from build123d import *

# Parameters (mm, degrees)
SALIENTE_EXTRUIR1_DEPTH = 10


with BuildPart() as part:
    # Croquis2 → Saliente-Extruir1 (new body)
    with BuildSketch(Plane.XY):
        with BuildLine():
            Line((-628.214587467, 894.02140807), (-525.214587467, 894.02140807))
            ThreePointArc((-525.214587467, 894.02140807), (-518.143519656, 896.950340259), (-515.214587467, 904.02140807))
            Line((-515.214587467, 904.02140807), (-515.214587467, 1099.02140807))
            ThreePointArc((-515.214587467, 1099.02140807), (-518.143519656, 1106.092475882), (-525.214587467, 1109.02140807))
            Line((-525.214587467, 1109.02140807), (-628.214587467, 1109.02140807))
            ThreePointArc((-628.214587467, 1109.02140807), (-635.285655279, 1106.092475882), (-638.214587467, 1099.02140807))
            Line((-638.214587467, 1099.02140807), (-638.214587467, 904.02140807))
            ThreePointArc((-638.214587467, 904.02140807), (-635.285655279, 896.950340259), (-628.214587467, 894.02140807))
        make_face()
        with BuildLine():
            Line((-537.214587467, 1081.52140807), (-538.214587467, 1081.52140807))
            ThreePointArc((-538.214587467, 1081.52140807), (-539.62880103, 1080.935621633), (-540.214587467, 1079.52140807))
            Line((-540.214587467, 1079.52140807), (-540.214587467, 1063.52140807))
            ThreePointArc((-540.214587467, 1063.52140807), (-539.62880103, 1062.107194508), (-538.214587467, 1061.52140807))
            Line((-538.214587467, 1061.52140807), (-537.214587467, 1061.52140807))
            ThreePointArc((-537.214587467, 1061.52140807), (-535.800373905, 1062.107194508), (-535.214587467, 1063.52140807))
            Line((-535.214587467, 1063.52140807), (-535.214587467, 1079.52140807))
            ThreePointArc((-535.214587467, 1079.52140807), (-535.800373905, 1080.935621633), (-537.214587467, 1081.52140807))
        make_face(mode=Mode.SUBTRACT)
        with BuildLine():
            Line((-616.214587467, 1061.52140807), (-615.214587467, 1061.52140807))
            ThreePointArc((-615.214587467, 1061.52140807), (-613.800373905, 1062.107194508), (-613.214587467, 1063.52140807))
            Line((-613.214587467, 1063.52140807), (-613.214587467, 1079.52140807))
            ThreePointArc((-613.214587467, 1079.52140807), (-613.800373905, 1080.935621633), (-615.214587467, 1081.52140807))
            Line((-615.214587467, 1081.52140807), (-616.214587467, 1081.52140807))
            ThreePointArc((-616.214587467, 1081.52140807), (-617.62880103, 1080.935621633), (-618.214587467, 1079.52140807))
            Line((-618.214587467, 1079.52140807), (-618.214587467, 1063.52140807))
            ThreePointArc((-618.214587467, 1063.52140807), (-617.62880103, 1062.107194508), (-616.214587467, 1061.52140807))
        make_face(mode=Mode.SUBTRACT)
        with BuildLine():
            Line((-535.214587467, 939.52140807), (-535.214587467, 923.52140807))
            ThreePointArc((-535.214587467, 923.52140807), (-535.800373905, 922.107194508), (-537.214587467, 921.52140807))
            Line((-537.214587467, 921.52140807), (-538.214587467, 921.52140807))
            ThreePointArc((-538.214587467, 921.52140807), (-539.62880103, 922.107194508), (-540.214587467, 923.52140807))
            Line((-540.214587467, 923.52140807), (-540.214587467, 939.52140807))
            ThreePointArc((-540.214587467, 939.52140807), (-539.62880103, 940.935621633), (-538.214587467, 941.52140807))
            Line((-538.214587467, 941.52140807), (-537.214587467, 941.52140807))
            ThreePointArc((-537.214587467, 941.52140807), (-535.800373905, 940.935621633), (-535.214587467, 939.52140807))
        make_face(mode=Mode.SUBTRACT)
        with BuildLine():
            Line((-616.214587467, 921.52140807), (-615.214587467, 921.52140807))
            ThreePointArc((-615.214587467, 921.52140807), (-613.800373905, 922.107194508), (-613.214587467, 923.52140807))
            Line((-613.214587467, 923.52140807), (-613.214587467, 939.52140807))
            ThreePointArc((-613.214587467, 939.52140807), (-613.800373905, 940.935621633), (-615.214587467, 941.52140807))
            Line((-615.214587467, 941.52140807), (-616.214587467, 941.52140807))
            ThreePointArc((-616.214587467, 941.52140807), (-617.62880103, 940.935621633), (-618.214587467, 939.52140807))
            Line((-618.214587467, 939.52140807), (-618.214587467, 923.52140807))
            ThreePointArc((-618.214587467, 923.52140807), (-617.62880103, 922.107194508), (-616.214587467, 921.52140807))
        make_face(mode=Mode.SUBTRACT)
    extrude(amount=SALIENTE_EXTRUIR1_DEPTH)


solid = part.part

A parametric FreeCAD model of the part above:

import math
import FreeCAD as App
import Part
import Sketcher

V = App.Vector

doc = App.newDocument("Part")
params = doc.addObject("Spreadsheet::Sheet", "Params")
for row, (alias, value) in enumerate([
    ("sketch1_radius", "10 mm"),
    ("sketch1_radius2", "2 mm"),
    ("sketch1_width", "103 mm"),
    ("sketch1_width2", "1 mm"),
    ("sketch1_height", "195 mm"),
    ("pad1_length", "10 mm"),
], start=1):
    params.set(f"A{row}", alias)
    params.set(f"B{row}", "=" + value)
    params.setAlias(f"B{row}", alias)

body = doc.addObject("PartDesign::Body", "Body")

# Sketch on XY plane
sketch1 = body.newObject("Sketcher::SketchObject", "Sketch")
sketch1.AttachmentSupport = (doc.getObject("XY_Plane"), [""])
sketch1.MapMode = "FlatFace"
sketch1.addGeometry([
    Part.LineSegment(V(-628.2, 894, 0), V(-525.2, 894, 0)),  # 0
    Part.ArcOfCircle(Part.Circle(V(-525.2, 904, 0), V(0, 0, 1), 10), math.radians(-90), math.radians(0)),  # 1
    Part.LineSegment(V(-515.2, 904, 0), V(-515.2, 1099, 0)),  # 2
    Part.ArcOfCircle(Part.Circle(V(-525.2, 1099, 0), V(0, 0, 1), 10), math.radians(0), math.radians(90)),  # 3
    Part.LineSegment(V(-525.2, 1109, 0), V(-628.2, 1109, 0)),  # 4
    Part.ArcOfCircle(Part.Circle(V(-628.2, 1099, 0), V(0, 0, 1), 10), math.radians(90), math.radians(180)),  # 5
    Part.LineSegment(V(-638.2, 1099, 0), V(-638.2, 904, 0)),  # 6
    Part.ArcOfCircle(Part.Circle(V(-628.2, 904, 0), V(0, 0, 1), 10), math.radians(-180), math.radians(-90)),  # 7
    Part.LineSegment(V(-615.2, 921.5, 0), V(-616.2, 921.5, 0)),  # 8
    Part.ArcOfCircle(Part.Circle(V(-616.2, 923.5, 0), V(0, 0, 1), 2), math.radians(180), math.radians(270)),  # 9
    Part.LineSegment(V(-618.2, 923.5, 0), V(-618.2, 939.5, 0)),  # 10
    Part.ArcOfCircle(Part.Circle(V(-616.2, 939.5, 0), V(0, 0, 1), 2), math.radians(90), math.radians(180)),  # 11
    Part.LineSegment(V(-616.2, 941.5, 0), V(-615.2, 941.5, 0)),  # 12
    Part.ArcOfCircle(Part.Circle(V(-615.2, 939.5, 0), V(0, 0, 1), 2), math.radians(0), math.radians(90)),  # 13
    Part.LineSegment(V(-613.2, 939.5, 0), V(-613.2, 923.5, 0)),  # 14
    Part.ArcOfCircle(Part.Circle(V(-615.2, 923.5, 0), V(0, 0, 1), 2), math.radians(-90), math.radians(0)),  # 15
    Part.ArcOfCircle(Part.Circle(V(-537.2, 939.5, 0), V(0, 0, 1), 2), math.radians(0), math.radians(90)),  # 16
    Part.LineSegment(V(-535.2, 939.5, 0), V(-535.2, 923.5, 0)),  # 17
    Part.ArcOfCircle(Part.Circle(V(-537.2, 923.5, 0), V(0, 0, 1), 2), math.radians(-90), math.radians(0)),  # 18
    Part.LineSegment(V(-537.2, 921.5, 0), V(-538.2, 921.5, 0)),  # 19
    Part.ArcOfCircle(Part.Circle(V(-538.2, 923.5, 0), V(0, 0, 1), 2), math.radians(180), math.radians(270)),  # 20
    Part.LineSegment(V(-540.2, 923.5, 0), V(-540.2, 939.5, 0)),  # 21
    Part.ArcOfCircle(Part.Circle(V(-538.2, 939.5, 0), V(0, 0, 1), 2), math.radians(90), math.radians(180)),  # 22
    Part.LineSegment(V(-538.2, 941.5, 0), V(-537.2, 941.5, 0)),  # 23
    Part.LineSegment(V(-615.2, 1061.5, 0), V(-616.2, 1061.5, 0)),  # 24
    Part.ArcOfCircle(Part.Circle(V(-616.2, 1063.5, 0), V(0, 0, 1), 2), math.radians(180), math.radians(270)),  # 25
    Part.LineSegment(V(-618.2, 1063.5, 0), V(-618.2, 1079.5, 0)),  # 26
    Part.ArcOfCircle(Part.Circle(V(-616.2, 1079.5, 0), V(0, 0, 1), 2), math.radians(90), math.radians(180)),  # 27
    Part.LineSegment(V(-616.2, 1081.5, 0), V(-615.2, 1081.5, 0)),  # 28
    Part.ArcOfCircle(Part.Circle(V(-615.2, 1079.5, 0), V(0, 0, 1), 2), math.radians(0), math.radians(90)),  # 29
    Part.LineSegment(V(-613.2, 1079.5, 0), V(-613.2, 1063.5, 0)),  # 30
    Part.ArcOfCircle(Part.Circle(V(-615.2, 1063.5, 0), V(0, 0, 1), 2), math.radians(-90), math.radians(0)),  # 31
    Part.LineSegment(V(-538.2, 1081.5, 0), V(-537.2, 1081.5, 0)),  # 32
    Part.ArcOfCircle(Part.Circle(V(-537.2, 1079.5, 0), V(0, 0, 1), 2), math.radians(0), math.radians(90)),  # 33
    Part.LineSegment(V(-535.2, 1079.5, 0), V(-535.2, 1063.5, 0)),  # 34
    Part.ArcOfCircle(Part.Circle(V(-537.2, 1063.5, 0), V(0, 0, 1), 2), math.radians(-90), math.radians(0)),  # 35
    Part.LineSegment(V(-537.2, 1061.5, 0), V(-538.2, 1061.5, 0)),  # 36
    Part.ArcOfCircle(Part.Circle(V(-538.2, 1063.5, 0), V(0, 0, 1), 2), math.radians(180), math.radians(270)),  # 37
    Part.LineSegment(V(-540.2, 1063.5, 0), V(-540.2, 1079.5, 0)),  # 38
    Part.ArcOfCircle(Part.Circle(V(-538.2, 1079.5, 0), V(0, 0, 1), 2), math.radians(90), math.radians(180)),  # 39
], False)
sketch1.addConstraint([
    Sketcher.Constraint("Tangent", 0, 2, 1, 1),
    Sketcher.Constraint("Tangent", 1, 2, 2, 1),
    Sketcher.Constraint("Tangent", 2, 2, 3, 1),
    Sketcher.Constraint("Tangent", 3, 2, 4, 1),
    Sketcher.Constraint("Tangent", 4, 2, 5, 1),
    Sketcher.Constraint("Tangent", 5, 2, 6, 1),
    Sketcher.Constraint("Tangent", 6, 2, 7, 1),
    Sketcher.Constraint("Tangent", 7, 2, 0, 1),
    Sketcher.Constraint("Tangent", 8, 2, 9, 2),
    Sketcher.Constraint("Tangent", 9, 1, 10, 1),
    Sketcher.Constraint("Tangent", 10, 2, 11, 2),
    Sketcher.Constraint("Tangent", 11, 1, 12, 1),
    Sketcher.Constraint("Tangent", 12, 2, 13, 2),
    Sketcher.Constraint("Tangent", 13, 1, 14, 1),
    Sketcher.Constraint("Tangent", 14, 2, 15, 2),
    Sketcher.Constraint("Tangent", 15, 1, 8, 1),
    Sketcher.Constraint("Tangent", 16, 1, 17, 1),
    Sketcher.Constraint("Tangent", 17, 2, 18, 2),
    Sketcher.Constraint("Tangent", 18, 1, 19, 1),
    Sketcher.Constraint("Tangent", 19, 2, 20, 2),
    Sketcher.Constraint("Tangent", 20, 1, 21, 1),
    Sketcher.Constraint("Tangent", 21, 2, 22, 2),
    Sketcher.Constraint("Tangent", 22, 1, 23, 1),
    Sketcher.Constraint("Tangent", 23, 2, 16, 2),
    Sketcher.Constraint("Tangent", 24, 2, 25, 2),
    Sketcher.Constraint("Tangent", 25, 1, 26, 1),
    Sketcher.Constraint("Tangent", 26, 2, 27, 2),
    Sketcher.Constraint("Tangent", 27, 1, 28, 1),
    Sketcher.Constraint("Tangent", 28, 2, 29, 2),
    Sketcher.Constraint("Tangent", 29, 1, 30, 1),
    Sketcher.Constraint("Tangent", 30, 2, 31, 2),
    Sketcher.Constraint("Tangent", 31, 1, 24, 1),
    Sketcher.Constraint("Tangent", 32, 2, 33, 2),
    Sketcher.Constraint("Tangent", 33, 1, 34, 1),
    Sketcher.Constraint("Tangent", 34, 2, 35, 2),
    Sketcher.Constraint("Tangent", 35, 1, 36, 1),
    Sketcher.Constraint("Tangent", 36, 2, 37, 2),
    Sketcher.Constraint("Tangent", 37, 1, 38, 1),
    Sketcher.Constraint("Tangent", 38, 2, 39, 2),
    Sketcher.Constraint("Tangent", 39, 1, 32, 1),
    Sketcher.Constraint("Horizontal", 0),
    Sketcher.Constraint("Vertical", 2),
    Sketcher.Constraint("Horizontal", 4),
    Sketcher.Constraint("Vertical", 6),
    Sketcher.Constraint("Horizontal", 8),
    Sketcher.Constraint("Vertical", 10),
    Sketcher.Constraint("Horizontal", 12),
    Sketcher.Constraint("Vertical", 14),
    Sketcher.Constraint("Vertical", 17),
    Sketcher.Constraint("Horizontal", 19),
    Sketcher.Constraint("Vertical", 21),
    Sketcher.Constraint("Horizontal", 23),
    Sketcher.Constraint("Horizontal", 24),
    Sketcher.Constraint("Vertical", 26),
    Sketcher.Constraint("Horizontal", 28),
    Sketcher.Constraint("Vertical", 30),
    Sketcher.Constraint("Horizontal", 32),
    Sketcher.Constraint("Vertical", 34),
    Sketcher.Constraint("Horizontal", 36),
    Sketcher.Constraint("Vertical", 38),
    Sketcher.Constraint("Equal", 1, 3),
    Sketcher.Constraint("Equal", 3, 5),
    Sketcher.Constraint("Equal", 5, 7),
    Sketcher.Constraint("Equal", 9, 11),
    Sketcher.Constraint("Equal", 11, 13),
    Sketcher.Constraint("Equal", 13, 15),
    Sketcher.Constraint("Equal", 15, 16),
    Sketcher.Constraint("Equal", 16, 18),
    Sketcher.Constraint("Equal", 18, 20),
    Sketcher.Constraint("Equal", 20, 22),
    Sketcher.Constraint("Equal", 22, 25),
    Sketcher.Constraint("Equal", 25, 27),
    Sketcher.Constraint("Equal", 27, 29),
    Sketcher.Constraint("Equal", 29, 31),
    Sketcher.Constraint("Equal", 31, 33),
    Sketcher.Constraint("Equal", 33, 35),
    Sketcher.Constraint("Equal", 35, 37),
    Sketcher.Constraint("Equal", 37, 39),
    Sketcher.Constraint("Horizontal", 13, 3, 16, 3),
    Sketcher.Constraint("Horizontal", 15, 3, 18, 3),
    Sketcher.Constraint("Horizontal", 29, 3, 33, 3),
    Sketcher.Constraint("Horizontal", 31, 3, 35, 3),
    Sketcher.Constraint("Vertical", 11, 3, 25, 3),
    Sketcher.Constraint("Vertical", 15, 3, 29, 3),
    Sketcher.Constraint("Vertical", 18, 3, 33, 3),
    Sketcher.Constraint("Vertical", 22, 3, 37, 3),
    Sketcher.Constraint("Equal", 12, 19),
    Sketcher.Constraint("Equal", 21, 26),
    Sketcher.Constraint("Radius", 1, 10.0),
    Sketcher.Constraint("Radius", 9, 2.0),
    Sketcher.Constraint("DistanceX", 0, 1, 0, 2, 103.0),
    Sketcher.Constraint("DistanceX", 8, 2, 8, 1, 1.0),
    Sketcher.Constraint("DistanceY", 2, 1, 2, 2, 195.0),
    Sketcher.Constraint("DistanceY", 10, 1, 10, 2, 16.0),
    Sketcher.Constraint("DistanceX", 7, 3, 9, 3, 12.0),
    Sketcher.Constraint("DistanceX", 16, 3, 1, 3, 12.0),
    Sketcher.Constraint("DistanceY", 11, 3, 25, 3, 124.0),
    Sketcher.Constraint("DistanceY", 7, 3, 9, 3, 19.5),
    Sketcher.Constraint("DistanceY", -1, 1, 1, 3, 904.021408),
    Sketcher.Constraint("DistanceX", 1, 3, -1, 1, 525.214587),
])
sketch1.setExpression("Constraints[88]", "Params.sketch1_radius")
sketch1.setExpression("Constraints[89]", "Params.sketch1_radius2")
sketch1.setExpression("Constraints[90]", "Params.sketch1_width")
sketch1.setExpression("Constraints[91]", "Params.sketch1_width2")
sketch1.setExpression("Constraints[92]", "Params.sketch1_height")
pad1 = body.newObject("PartDesign::Pad", "Pad")
pad1.Profile = sketch1
pad1.setExpression("Length", "Params.pad1_length")

doc.recompute()
